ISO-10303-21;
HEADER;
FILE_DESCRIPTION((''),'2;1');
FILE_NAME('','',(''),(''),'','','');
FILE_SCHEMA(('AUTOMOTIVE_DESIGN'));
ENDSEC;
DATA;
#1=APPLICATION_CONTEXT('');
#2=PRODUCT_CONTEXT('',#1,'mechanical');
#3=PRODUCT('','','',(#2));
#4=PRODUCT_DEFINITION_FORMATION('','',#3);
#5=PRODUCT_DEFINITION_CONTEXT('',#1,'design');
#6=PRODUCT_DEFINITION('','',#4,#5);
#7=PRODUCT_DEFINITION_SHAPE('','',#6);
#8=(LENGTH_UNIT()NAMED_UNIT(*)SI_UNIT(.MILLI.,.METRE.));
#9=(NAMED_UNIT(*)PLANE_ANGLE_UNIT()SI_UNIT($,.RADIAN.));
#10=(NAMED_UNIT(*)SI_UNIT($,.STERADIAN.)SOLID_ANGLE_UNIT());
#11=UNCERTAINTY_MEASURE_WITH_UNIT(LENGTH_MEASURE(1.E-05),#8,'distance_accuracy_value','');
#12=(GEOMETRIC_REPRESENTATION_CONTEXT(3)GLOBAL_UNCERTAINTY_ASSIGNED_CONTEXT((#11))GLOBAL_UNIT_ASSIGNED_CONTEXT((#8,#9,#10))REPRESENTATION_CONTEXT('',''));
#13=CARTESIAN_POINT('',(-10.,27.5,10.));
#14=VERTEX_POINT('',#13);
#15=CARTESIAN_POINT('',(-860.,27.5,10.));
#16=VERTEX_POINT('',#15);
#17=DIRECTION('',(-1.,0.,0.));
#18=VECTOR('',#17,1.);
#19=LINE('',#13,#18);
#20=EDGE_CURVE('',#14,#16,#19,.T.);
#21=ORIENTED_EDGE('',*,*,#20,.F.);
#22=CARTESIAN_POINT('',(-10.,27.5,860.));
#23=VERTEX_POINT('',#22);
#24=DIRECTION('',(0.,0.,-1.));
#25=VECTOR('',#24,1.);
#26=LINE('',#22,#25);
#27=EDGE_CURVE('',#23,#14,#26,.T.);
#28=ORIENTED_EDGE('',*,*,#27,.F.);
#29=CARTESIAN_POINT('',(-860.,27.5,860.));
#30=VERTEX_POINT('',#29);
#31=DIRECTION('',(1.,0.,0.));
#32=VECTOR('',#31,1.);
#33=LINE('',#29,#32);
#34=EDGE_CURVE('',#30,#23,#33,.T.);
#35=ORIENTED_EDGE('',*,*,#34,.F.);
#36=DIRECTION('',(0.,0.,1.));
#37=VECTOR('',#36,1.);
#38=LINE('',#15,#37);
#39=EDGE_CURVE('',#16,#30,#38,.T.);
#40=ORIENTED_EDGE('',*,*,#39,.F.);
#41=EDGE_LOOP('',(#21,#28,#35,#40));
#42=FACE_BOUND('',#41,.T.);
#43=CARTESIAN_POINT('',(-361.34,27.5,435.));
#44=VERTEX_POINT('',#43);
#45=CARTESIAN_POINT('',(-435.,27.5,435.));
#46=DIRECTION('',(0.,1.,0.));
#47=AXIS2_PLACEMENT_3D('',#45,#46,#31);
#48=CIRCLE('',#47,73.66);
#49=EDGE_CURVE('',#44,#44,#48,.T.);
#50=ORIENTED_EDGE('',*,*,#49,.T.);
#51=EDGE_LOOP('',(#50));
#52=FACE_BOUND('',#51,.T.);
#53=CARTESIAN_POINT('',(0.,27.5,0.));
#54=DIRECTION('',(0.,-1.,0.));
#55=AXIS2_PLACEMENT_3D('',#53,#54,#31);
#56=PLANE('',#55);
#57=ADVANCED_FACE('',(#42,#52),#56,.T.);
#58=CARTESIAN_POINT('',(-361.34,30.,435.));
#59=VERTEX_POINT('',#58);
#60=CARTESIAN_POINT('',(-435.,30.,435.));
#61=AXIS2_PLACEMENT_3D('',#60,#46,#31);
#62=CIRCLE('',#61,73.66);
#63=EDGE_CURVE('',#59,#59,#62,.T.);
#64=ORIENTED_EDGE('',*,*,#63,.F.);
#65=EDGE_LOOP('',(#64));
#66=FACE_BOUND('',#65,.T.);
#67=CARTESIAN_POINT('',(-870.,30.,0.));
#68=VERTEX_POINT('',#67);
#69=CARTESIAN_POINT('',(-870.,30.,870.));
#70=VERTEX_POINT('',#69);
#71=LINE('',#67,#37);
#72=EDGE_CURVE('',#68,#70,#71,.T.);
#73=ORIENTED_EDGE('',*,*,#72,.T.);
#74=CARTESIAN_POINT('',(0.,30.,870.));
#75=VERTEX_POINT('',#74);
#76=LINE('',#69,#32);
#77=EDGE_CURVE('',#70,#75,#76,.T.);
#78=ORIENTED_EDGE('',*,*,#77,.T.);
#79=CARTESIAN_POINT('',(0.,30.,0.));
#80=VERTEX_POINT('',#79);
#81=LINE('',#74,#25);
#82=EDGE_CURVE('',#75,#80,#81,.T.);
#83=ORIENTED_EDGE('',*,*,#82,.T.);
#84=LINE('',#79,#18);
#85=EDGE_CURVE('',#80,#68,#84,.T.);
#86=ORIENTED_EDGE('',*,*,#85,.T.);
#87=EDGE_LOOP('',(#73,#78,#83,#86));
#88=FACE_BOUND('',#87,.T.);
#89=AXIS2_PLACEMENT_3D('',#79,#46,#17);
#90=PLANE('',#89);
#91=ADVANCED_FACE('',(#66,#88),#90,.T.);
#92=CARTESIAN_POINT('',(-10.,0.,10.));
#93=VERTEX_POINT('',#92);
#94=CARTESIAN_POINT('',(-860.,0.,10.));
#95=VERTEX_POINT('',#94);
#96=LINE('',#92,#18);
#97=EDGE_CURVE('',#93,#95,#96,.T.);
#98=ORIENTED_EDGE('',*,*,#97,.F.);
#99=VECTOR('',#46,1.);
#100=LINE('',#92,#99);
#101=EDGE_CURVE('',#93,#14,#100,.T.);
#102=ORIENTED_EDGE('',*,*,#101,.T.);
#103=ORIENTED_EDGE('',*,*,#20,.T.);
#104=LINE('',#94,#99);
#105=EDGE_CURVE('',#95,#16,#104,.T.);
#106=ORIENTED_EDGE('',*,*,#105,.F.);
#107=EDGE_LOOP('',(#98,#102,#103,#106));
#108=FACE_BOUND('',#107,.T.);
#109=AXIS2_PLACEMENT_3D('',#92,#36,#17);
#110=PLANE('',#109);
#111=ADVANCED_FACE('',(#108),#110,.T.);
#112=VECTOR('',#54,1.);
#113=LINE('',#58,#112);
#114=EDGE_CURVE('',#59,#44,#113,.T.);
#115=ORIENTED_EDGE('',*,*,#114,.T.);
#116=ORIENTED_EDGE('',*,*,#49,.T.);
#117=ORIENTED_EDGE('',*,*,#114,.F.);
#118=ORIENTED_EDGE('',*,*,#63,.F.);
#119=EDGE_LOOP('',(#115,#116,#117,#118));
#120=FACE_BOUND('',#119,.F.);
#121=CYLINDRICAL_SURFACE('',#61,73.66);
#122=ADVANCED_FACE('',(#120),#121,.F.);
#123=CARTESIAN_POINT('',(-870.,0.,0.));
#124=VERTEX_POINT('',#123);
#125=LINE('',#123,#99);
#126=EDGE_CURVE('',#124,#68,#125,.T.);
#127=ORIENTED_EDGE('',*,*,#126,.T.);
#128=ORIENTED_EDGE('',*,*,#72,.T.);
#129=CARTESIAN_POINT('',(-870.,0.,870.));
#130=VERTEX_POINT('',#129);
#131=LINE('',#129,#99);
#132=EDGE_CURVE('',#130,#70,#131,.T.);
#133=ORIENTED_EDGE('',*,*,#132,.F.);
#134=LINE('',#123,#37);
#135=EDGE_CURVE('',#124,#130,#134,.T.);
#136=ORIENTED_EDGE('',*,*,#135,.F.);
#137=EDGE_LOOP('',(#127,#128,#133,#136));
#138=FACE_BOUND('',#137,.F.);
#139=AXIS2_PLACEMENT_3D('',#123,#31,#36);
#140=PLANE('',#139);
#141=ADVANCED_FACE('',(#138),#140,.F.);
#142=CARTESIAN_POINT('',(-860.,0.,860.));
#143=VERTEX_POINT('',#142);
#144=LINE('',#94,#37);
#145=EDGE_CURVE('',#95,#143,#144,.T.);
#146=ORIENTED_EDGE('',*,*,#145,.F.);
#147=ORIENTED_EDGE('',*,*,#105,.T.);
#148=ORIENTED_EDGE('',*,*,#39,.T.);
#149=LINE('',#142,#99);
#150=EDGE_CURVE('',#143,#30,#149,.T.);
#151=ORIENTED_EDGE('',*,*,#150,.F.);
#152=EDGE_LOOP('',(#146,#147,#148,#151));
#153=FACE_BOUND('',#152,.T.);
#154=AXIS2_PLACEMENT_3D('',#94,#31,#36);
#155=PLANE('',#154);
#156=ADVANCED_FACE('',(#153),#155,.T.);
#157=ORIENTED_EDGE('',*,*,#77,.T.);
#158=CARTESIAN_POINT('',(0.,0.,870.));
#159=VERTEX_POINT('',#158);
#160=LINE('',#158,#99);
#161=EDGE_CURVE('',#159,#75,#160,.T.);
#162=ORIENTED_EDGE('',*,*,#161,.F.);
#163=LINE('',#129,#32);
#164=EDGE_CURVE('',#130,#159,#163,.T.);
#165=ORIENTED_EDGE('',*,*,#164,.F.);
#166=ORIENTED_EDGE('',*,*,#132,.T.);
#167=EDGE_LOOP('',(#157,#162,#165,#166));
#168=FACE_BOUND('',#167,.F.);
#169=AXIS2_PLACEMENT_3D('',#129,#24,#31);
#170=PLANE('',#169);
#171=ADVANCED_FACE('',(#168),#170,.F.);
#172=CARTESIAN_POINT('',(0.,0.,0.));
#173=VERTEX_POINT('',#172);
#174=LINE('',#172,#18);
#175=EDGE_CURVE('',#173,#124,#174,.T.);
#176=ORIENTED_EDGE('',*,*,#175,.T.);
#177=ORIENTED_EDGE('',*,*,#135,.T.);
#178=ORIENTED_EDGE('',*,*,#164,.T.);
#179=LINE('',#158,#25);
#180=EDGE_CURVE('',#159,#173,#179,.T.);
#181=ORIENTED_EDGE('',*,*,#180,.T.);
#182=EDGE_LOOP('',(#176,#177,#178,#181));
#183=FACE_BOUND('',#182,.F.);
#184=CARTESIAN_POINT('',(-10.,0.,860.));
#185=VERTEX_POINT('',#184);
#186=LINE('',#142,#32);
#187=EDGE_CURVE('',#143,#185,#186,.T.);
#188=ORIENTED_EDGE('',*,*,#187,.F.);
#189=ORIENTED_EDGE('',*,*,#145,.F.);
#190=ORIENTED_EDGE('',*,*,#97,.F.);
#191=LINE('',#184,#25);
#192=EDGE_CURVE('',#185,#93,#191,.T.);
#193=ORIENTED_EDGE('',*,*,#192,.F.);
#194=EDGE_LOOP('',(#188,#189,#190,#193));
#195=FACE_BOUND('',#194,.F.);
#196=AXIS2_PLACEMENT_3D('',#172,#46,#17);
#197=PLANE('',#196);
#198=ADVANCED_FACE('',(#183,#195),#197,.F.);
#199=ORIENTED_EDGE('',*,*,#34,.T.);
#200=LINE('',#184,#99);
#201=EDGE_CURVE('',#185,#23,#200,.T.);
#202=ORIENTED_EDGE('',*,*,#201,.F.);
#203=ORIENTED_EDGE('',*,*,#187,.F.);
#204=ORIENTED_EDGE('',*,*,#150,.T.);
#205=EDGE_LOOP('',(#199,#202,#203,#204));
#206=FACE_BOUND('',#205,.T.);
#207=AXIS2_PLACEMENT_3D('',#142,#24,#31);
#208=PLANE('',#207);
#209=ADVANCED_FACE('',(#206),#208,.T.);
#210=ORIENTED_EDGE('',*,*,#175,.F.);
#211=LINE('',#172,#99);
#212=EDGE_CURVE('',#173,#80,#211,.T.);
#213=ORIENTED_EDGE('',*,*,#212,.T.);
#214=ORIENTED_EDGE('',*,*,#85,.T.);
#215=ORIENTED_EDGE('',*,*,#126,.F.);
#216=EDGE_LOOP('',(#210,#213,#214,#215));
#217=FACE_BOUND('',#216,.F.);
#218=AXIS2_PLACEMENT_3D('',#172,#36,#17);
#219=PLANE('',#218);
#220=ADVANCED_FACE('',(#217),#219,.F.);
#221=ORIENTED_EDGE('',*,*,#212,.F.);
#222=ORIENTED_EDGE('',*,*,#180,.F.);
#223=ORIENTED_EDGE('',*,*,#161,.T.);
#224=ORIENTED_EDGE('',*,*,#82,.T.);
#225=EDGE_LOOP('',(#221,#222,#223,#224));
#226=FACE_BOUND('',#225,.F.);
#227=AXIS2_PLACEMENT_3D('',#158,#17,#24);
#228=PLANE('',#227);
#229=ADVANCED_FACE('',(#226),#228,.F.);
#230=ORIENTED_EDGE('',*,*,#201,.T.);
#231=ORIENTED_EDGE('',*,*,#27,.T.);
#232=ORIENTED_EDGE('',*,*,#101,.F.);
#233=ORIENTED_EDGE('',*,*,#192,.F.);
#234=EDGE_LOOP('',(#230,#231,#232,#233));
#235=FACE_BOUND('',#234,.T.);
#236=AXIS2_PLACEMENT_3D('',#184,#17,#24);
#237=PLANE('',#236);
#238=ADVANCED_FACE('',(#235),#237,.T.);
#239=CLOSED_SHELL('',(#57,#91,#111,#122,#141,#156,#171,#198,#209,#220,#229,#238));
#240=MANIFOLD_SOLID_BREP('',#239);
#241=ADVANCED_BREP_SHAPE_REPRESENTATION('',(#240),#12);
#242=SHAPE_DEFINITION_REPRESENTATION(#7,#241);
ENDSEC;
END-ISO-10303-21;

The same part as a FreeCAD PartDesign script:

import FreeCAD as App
import Part
import Sketcher

V = App.Vector

doc = App.newDocument("Part")
body = doc.addObject("PartDesign::Body", "Body")

# Sketch on XZ plane
sketch1 = doc.addObject("Sketcher::SketchObject", "Sketch")
body.addObject(sketch1)
sketch1.AttachmentSupport = (doc.XZ_Plane, [""])
sketch1.MapMode = "FlatFace"
sketch1.addGeometry([
    Part.LineSegment(V(0, 870, 0), V(0, 0, 0)),
    Part.LineSegment(V(0, 0, 0), V(-870, 0, 0)),
    Part.LineSegment(V(-870, 0, 0), V(-870, 870, 0)),
    Part.LineSegment(V(-870, 870, 0), V(0, 870, 0)),
], False)
sketch1.addConstraint([
    Sketcher.Constraint("Coincident", 0, 2, 1, 1),
    Sketcher.Constraint("Coincident", 1, 2, 2, 1),
    Sketcher.Constraint("Coincident", 2, 2, 3, 1),
    Sketcher.Constraint("Coincident", 3, 2, 0, 1),
    Sketcher.Constraint("Vertical", 0),
    Sketcher.Constraint("Horizontal", 1),
    Sketcher.Constraint("Vertical", 2),
    Sketcher.Constraint("Horizontal", 3),
    Sketcher.Constraint("Coincident", 0, 2, -1, 1),
    Sketcher.Constraint("Equal", 3, 0),
    Sketcher.Constraint("DistanceX", 1, 2, 1, 1, 870.0),
])
pad1 = doc.addObject("PartDesign::Pad", "Pad")
body.addObject(pad1)
pad1.Profile = sketch1
pad1.Length = 30
pad1.Reversed = True

# Sketch on XZ plane
sketch2 = doc.addObject("Sketcher::SketchObject", "Sketch001")
body.addObject(sketch2)
sketch2.AttachmentSupport = (doc.XZ_Plane, [""])
sketch2.MapMode = "FlatFace"
sketch2.addGeometry([
    Part.LineSegment(V(-10, 10, 0), V(-10, 860, 0)),
    Part.LineSegment(V(-10, 860, 0), V(-860, 860, 0)),
    Part.LineSegment(V(-860, 860, 0), V(-860, 10, 0)),
    Part.LineSegment(V(-860, 10, 0), V(-10, 10, 0)),
], False)
sketch2.addConstraint([
    Sketcher.Constraint("Coincident", 0, 2, 1, 1),
    Sketcher.Constraint("Coincident", 1, 2, 2, 1),
    Sketcher.Constraint("Coincident", 2, 2, 3, 1),
    Sketcher.Constraint("Coincident", 3, 2, 0, 1),
    Sketcher.Constraint("Vertical", 0),
    Sketcher.Constraint("Horizontal", 1),
    Sketcher.Constraint("Vertical", 2),
    Sketcher.Constraint("Horizontal", 3),
    Sketcher.Constraint("Equal", 3, 0),
    Sketcher.Constraint("DistanceX", 0, 2, -1, 1, 10.0),
    Sketcher.Constraint("DistanceY", -1, 1, 2, 2, 10.0),
    Sketcher.Constraint("DistanceX", 1, 2, 1, 1, 850.0),
])
pocket1 = doc.addObject("PartDesign::Pocket", "Pocket")
body.addObject(pocket1)
pocket1.Profile = sketch2
pocket1.Length = 27.5

# Sketch on XZ plane
sketch3 = doc.addObject("Sketcher::SketchObject", "Sketch002")
body.addObject(sketch3)
sketch3.AttachmentSupport = (doc.XZ_Plane, [""])
sketch3.MapMode = "FlatFace"
sketch3.AttachmentOffset = App.Placement(V(0, 0, -30), App.Rotation())
sketch3.addGeometry(Part.Circle(V(-435, 435, 0), V(0, 0, 1), 74), False)
sketch3.addConstraint([
    Sketcher.Constraint("Diameter", 0, 147.32),
    Sketcher.Constraint("DistanceX", 0, 3, -1, 1, 435.0),
    Sketcher.Constraint("DistanceY", -1, 1, 0, 3, 435.0),
])
pocket2 = doc.addObject("PartDesign::Pocket", "Pocket001")
body.addObject(pocket2)
pocket2.Profile = sketch3
pocket2.Length = 25.4
pocket2.Reversed = True

doc.recompute()
